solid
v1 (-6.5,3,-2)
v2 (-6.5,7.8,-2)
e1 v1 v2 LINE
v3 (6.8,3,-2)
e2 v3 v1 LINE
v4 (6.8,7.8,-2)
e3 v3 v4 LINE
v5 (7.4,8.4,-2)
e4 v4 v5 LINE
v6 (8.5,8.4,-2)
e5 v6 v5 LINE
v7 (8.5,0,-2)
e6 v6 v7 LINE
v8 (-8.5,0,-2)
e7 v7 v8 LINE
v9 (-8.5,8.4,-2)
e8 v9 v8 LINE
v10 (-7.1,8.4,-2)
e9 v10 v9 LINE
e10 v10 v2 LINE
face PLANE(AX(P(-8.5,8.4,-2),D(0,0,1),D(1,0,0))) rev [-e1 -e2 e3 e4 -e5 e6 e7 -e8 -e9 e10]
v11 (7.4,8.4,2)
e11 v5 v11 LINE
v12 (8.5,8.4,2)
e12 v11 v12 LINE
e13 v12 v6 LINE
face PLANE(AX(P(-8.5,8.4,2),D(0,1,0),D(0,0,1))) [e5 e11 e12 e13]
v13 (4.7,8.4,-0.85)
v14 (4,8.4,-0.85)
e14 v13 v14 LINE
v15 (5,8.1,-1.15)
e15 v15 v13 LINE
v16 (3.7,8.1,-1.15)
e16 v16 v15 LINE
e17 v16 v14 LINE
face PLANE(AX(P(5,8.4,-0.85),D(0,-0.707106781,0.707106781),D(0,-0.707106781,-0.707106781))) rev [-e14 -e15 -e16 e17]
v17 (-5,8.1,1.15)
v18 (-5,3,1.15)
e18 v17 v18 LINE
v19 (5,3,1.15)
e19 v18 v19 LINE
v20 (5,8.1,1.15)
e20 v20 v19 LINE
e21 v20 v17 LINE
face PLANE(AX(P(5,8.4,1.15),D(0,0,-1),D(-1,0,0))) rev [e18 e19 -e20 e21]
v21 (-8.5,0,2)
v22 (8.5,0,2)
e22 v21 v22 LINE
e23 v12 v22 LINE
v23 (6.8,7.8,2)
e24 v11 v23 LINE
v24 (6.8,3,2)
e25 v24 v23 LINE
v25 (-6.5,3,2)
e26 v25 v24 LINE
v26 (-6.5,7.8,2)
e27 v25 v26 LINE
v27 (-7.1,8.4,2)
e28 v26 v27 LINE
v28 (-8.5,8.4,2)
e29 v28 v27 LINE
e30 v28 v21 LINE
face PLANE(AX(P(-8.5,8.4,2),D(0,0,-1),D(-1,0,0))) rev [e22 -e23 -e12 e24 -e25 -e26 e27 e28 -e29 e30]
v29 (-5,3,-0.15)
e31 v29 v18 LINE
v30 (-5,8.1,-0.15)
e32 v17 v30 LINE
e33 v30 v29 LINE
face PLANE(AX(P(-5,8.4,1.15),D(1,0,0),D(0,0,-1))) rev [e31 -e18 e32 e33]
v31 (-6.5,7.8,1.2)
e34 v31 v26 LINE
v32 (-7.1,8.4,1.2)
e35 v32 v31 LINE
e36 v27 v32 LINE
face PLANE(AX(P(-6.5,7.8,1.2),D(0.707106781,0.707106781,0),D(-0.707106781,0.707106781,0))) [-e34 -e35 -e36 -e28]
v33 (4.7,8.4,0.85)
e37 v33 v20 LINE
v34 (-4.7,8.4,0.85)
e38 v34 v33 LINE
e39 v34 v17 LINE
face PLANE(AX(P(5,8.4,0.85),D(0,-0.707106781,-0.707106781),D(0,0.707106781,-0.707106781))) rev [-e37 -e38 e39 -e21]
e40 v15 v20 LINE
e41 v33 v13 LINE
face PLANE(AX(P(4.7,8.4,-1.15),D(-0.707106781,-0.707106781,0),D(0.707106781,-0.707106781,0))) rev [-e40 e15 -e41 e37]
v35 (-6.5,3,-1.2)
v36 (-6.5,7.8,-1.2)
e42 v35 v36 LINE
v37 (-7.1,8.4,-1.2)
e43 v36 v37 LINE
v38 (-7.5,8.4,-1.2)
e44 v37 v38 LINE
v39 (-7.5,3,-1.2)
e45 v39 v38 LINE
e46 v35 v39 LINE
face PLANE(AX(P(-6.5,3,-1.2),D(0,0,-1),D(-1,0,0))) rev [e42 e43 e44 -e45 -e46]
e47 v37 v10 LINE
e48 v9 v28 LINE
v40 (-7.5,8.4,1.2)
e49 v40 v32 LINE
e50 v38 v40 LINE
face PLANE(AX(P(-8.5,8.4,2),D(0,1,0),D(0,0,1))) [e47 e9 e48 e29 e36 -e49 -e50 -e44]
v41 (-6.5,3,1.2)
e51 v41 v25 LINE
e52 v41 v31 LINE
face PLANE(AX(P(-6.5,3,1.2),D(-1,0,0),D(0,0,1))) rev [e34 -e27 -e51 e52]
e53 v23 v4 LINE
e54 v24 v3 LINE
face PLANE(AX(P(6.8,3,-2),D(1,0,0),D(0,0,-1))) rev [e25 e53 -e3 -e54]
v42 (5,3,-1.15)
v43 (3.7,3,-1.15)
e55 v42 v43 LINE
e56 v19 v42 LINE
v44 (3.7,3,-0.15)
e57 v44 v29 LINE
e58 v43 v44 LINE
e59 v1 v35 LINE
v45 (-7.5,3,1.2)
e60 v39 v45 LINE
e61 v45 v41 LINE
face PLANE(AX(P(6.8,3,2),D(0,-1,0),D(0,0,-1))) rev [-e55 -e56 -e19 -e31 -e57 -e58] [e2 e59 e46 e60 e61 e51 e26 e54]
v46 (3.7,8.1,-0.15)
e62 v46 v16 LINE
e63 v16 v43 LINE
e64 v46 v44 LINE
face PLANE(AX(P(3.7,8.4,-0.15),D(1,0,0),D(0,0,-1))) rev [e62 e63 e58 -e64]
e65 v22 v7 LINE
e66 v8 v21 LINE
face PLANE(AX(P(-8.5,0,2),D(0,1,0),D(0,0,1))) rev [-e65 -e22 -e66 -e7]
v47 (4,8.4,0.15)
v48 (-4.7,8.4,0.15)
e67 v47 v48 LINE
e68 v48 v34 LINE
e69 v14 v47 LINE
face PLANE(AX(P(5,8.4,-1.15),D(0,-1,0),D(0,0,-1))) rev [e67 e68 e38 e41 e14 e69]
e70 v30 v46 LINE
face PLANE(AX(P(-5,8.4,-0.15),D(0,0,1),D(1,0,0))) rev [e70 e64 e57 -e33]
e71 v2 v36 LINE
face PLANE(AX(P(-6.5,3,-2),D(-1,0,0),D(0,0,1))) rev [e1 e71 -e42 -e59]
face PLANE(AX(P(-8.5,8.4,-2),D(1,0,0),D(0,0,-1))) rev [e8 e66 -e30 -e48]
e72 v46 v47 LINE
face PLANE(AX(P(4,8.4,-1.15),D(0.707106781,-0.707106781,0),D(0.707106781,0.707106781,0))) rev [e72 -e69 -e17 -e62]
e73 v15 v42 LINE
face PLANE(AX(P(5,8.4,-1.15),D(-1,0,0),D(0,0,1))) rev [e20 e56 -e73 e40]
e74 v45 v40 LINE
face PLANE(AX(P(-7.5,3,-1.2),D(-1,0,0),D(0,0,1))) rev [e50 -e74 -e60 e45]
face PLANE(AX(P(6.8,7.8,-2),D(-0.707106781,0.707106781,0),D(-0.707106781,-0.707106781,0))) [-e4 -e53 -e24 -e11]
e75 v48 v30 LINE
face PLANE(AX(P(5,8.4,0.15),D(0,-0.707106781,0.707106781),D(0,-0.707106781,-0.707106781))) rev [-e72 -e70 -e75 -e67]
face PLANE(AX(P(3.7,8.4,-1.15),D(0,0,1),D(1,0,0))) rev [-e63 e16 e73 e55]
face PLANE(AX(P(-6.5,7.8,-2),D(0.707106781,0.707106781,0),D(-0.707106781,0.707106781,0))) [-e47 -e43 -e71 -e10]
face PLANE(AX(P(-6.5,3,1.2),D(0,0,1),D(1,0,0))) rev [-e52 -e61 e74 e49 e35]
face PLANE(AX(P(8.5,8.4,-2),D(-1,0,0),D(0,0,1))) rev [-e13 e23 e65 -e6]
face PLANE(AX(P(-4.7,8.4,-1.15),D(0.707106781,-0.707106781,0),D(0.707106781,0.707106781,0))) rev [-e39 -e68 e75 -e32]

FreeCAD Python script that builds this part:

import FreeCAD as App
import Part
import Sketcher

V = App.Vector


def edges_at(feature, points):
    """Names of the edges that pass closest to the given points."""
    edges = feature.Shape.Edges
    near = lambda p: min(range(len(edges)), key=lambda i: edges[i].distToShape(Part.Vertex(*p))[0])
    return sorted({f"Edge{near(p) + 1}" for p in points})

doc = App.newDocument("Part")
body = doc.addObject("PartDesign::Body", "Body")

# Sketch on XZ plane
sketch1 = body.newObject("Sketcher::SketchObject", "Sketch")
sketch1.AttachmentSupport = (doc.getObject("XZ_Plane"), [""])
sketch1.MapMode = "FlatFace"
sketch1.addGeometry(Part.LineSegment(V(-8.5, -2, 0), V(-8.5, 2, 0)), False)
sketch1.addGeometry(Part.LineSegment(V(-8.5, 2, 0), V(8.5, 2, 0)), False)
sketch1.addGeometry(Part.LineSegment(V(8.5, 2, 0), V(8.5, -2, 0)), False)
sketch1.addGeometry(Part.LineSegment(V(8.5, -2, 0), V(-8.5, -2, 0)), False)
sketch1.addConstraint(Sketcher.Constraint("Coincident", 0, 2, 1, 1))
sketch1.addConstraint(Sketcher.Constraint("Coincident", 1, 2, 2, 1))
sketch1.addConstraint(Sketcher.Constraint("Coincident", 2, 2, 3, 1))
sketch1.addConstraint(Sketcher.Constraint("Coincident", 3, 2, 0, 1))
sketch1.addConstraint(Sketcher.Constraint("Vertical", 0))
sketch1.addConstraint(Sketcher.Constraint("Horizontal", 1))
sketch1.addConstraint(Sketcher.Constraint("Vertical", 2))
sketch1.addConstraint(Sketcher.Constraint("Horizontal", 3))
sketch1.addConstraint(Sketcher.Constraint("Symmetric", 0, 2, 2, 2, -1, 1))
sketch1.addConstraint(Sketcher.Constraint("DistanceX", 1, 1, 1, 2, 17.0))
sketch1.addConstraint(Sketcher.Constraint("DistanceY", 0, 1, 0, 2, 4.0))
pad1 = body.newObject("PartDesign::Pad", "Pad")
pad1.Profile = sketch1
pad1.Length = 8.4
pad1.Reversed = True

# Sketch on XZ plane
sketch2 = body.newObject("Sketcher::SketchObject", "Sketch001")
sketch2.AttachmentSupport = (doc.getObject("XZ_Plane"), [""])
sketch2.MapMode = "FlatFace"
sketch2.AttachmentOffset = App.Placement(V(0, 0, -8.4), App.Rotation())
sketch2.addGeometry(Part.LineSegment(V(6.8, -2, 0), V(-6.5, -2, 0)), False)
sketch2.addGeometry(Part.LineSegment(V(-6.5, -2, 0), V(-6.5, -1.2, 0)), False)
sketch2.addGeometry(Part.LineSegment(V(-6.5, -1.2, 0), V(-7.5, -1.2, 0)), False)
sketch2.addGeometry(Part.LineSegment(V(-7.5, -1.2, 0), V(-7.5, 1.2, 0)), False)
sketch2.addGeometry(Part.LineSegment(V(-7.5, 1.2, 0), V(-6.5, 1.2, 0)), False)
sketch2.addGeometry(Part.LineSegment(V(-6.5, 1.2, 0), V(-6.5, 2, 0)), False)
sketch2.addGeometry(Part.LineSegment(V(-6.5, 2, 0), V(6.8, 2, 0)), False)
sketch2.addGeometry(Part.LineSegment(V(6.8, 2, 0), V(6.8, -2, 0)), False)
sketch2.addConstraint(Sketcher.Constraint("Coincident", 0, 2, 1, 1))
sketch2.addConstraint(Sketcher.Constraint("Coincident", 1, 2, 2, 1))
sketch2.addConstraint(Sketcher.Constraint("Coincident", 2, 2, 3, 1))
sketch2.addConstraint(Sketcher.Constraint("Coincident", 3, 2, 4, 1))
sketch2.addConstraint(Sketcher.Constraint("Coincident", 4, 2, 5, 1))
sketch2.addConstraint(Sketcher.Constraint("Coincident", 5, 2, 6, 1))
sketch2.addConstraint(Sketcher.Constraint("Coincident", 6, 2, 7, 1))
sketch2.addConstraint(Sketcher.Constraint("Coincident", 7, 2, 0, 1))
sketch2.addConstraint(Sketcher.Constraint("Horizontal", 0))
sketch2.addConstraint(Sketcher.Constraint("Vertical", 1))
sketch2.addConstraint(Sketcher.Constraint("Horizontal", 2))
sketch2.addConstraint(Sketcher.Constraint("Vertical", 3))
sketch2.addConstraint(Sketcher.Constraint("Horizontal", 4))
sketch2.addConstraint(Sketcher.Constraint("Vertical", 5))
sketch2.addConstraint(Sketcher.Constraint("Horizontal", 6))
sketch2.addConstraint(Sketcher.Constraint("Vertical", 7))
sketch2.addConstraint(Sketcher.Constraint("Symmetric", 1, 2, 4, 2, -1))
sketch2.addConstraint(Sketcher.Constraint("Equal", 1, 5))
sketch2.addConstraint(Sketcher.Constraint("DistanceX", 2, 2, 2, 1, 1.0))
sketch2.addConstraint(Sketcher.Constraint("DistanceY", 7, 2, 7, 1, 4.0))
sketch2.addConstraint(Sketcher.Constraint("DistanceX", 0, 2, 0, 1, 13.3))
sketch2.addConstraint(Sketcher.Constraint("DistanceY", 1, 1, 1, 2, 0.8))
sketch2.addConstraint(Sketcher.Constraint("DistanceX", 0, 2, -1, 1, 6.5))
pocket1 = body.newObject("PartDesign::Pocket", "Pocket")
pocket1.Profile = sketch2
pocket1.Length = 5.4
pocket1.Reversed = True
doc.recompute()

chamfer = body.newObject("PartDesign::Chamfer", "Chamfer")
chamfer.Base = (pocket1, edges_at(pocket1, [(6.8, 8.4, 0), (-6.5, 8.4, -1.6), (-6.5, 8.4, 1.6)]))
chamfer.Size = 0.6

# Sketch on XZ plane
sketch3 = body.newObject("Sketcher::SketchObject", "Sketch002")
sketch3.AttachmentSupport = (doc.getObject("XZ_Plane"), [""])
sketch3.MapMode = "FlatFace"
sketch3.AttachmentOffset = App.Placement(V(0, 0, -3), App.Rotation())
sketch3.addGeometry(Part.LineSegment(V(5, 1.1, 0), V(5, -1.1, 0)), False)
sketch3.addGeometry(Part.LineSegment(V(5, -1.1, 0), V(3.7, -1.1, 0)), False)
sketch3.addGeometry(Part.LineSegment(V(3.7, -1.1, 0), V(3.7, -0.1, 0)), False)
sketch3.addGeometry(Part.LineSegment(V(3.7, -0.1, 0), V(-5, -0.1, 0)), False)
sketch3.addGeometry(Part.LineSegment(V(-5, -0.1, 0), V(-5, 1.1, 0)), False)
sketch3.addGeometry(Part.LineSegment(V(-5, 1.1, 0), V(5, 1.1, 0)), False)
sketch3.addConstraint(Sketcher.Constraint("Coincident", 0, 2, 1, 1))
sketch3.addConstraint(Sketcher.Constraint("Coincident", 1, 2, 2, 1))
sketch3.addConstraint(Sketcher.Constraint("Coincident", 2, 2, 3, 1))
sketch3.addConstraint(Sketcher.Constraint("Coincident", 3, 2, 4, 1))
sketch3.addConstraint(Sketcher.Constraint("Coincident", 4, 2, 5, 1))
sketch3.addConstraint(Sketcher.Constraint("Coincident", 5, 2, 0, 1))
sketch3.addConstraint(Sketcher.Constraint("Vertical", 0))
sketch3.addConstraint(Sketcher.Constraint("Horizontal", 1))
sketch3.addConstraint(Sketcher.Constraint("Vertical", 2))
sketch3.addConstraint(Sketcher.Constraint("Horizontal", 3))
sketch3.addConstraint(Sketcher.Constraint("Vertical", 4))
sketch3.addConstraint(Sketcher.Constraint("Horizontal", 5))
sketch3.addConstraint(Sketcher.Constraint("Symmetric", 0, 2, 4, 2, -1, 1))
sketch3.addConstraint(Sketcher.Constraint("Equal", 1, 4))
sketch3.addConstraint(Sketcher.Constraint("DistanceX", 5, 1, 5, 2, 10.0))
sketch3.addConstraint(Sketcher.Constraint("DistanceY", 2, 1, 2, 2, 1.0))
sketch3.addConstraint(Sketcher.Constraint("DistanceX", 1, 2, 1, 1, 1.3))
pad2 = body.newObject("PartDesign::Pad", "Pad001")
pad2.Profile = sketch3
pad2.Length = 5.4
pad2.Reversed = True
doc.recompute()

chamfer2 = body.newObject("PartDesign::Chamfer", "Chamfer001")
chamfer2.Base = (pad2, edges_at(pad2, [
    (4.35, 8.4, -1.15),
    (3.7, 8.4, -0.65),
    (-0.65, 8.4, -0.15),
    (-5, 8.4, 0.5),
    (0, 8.4, 1.15),
    (5, 8.4, 0),
]))
chamfer2.Size = 0.3

doc.recompute()
